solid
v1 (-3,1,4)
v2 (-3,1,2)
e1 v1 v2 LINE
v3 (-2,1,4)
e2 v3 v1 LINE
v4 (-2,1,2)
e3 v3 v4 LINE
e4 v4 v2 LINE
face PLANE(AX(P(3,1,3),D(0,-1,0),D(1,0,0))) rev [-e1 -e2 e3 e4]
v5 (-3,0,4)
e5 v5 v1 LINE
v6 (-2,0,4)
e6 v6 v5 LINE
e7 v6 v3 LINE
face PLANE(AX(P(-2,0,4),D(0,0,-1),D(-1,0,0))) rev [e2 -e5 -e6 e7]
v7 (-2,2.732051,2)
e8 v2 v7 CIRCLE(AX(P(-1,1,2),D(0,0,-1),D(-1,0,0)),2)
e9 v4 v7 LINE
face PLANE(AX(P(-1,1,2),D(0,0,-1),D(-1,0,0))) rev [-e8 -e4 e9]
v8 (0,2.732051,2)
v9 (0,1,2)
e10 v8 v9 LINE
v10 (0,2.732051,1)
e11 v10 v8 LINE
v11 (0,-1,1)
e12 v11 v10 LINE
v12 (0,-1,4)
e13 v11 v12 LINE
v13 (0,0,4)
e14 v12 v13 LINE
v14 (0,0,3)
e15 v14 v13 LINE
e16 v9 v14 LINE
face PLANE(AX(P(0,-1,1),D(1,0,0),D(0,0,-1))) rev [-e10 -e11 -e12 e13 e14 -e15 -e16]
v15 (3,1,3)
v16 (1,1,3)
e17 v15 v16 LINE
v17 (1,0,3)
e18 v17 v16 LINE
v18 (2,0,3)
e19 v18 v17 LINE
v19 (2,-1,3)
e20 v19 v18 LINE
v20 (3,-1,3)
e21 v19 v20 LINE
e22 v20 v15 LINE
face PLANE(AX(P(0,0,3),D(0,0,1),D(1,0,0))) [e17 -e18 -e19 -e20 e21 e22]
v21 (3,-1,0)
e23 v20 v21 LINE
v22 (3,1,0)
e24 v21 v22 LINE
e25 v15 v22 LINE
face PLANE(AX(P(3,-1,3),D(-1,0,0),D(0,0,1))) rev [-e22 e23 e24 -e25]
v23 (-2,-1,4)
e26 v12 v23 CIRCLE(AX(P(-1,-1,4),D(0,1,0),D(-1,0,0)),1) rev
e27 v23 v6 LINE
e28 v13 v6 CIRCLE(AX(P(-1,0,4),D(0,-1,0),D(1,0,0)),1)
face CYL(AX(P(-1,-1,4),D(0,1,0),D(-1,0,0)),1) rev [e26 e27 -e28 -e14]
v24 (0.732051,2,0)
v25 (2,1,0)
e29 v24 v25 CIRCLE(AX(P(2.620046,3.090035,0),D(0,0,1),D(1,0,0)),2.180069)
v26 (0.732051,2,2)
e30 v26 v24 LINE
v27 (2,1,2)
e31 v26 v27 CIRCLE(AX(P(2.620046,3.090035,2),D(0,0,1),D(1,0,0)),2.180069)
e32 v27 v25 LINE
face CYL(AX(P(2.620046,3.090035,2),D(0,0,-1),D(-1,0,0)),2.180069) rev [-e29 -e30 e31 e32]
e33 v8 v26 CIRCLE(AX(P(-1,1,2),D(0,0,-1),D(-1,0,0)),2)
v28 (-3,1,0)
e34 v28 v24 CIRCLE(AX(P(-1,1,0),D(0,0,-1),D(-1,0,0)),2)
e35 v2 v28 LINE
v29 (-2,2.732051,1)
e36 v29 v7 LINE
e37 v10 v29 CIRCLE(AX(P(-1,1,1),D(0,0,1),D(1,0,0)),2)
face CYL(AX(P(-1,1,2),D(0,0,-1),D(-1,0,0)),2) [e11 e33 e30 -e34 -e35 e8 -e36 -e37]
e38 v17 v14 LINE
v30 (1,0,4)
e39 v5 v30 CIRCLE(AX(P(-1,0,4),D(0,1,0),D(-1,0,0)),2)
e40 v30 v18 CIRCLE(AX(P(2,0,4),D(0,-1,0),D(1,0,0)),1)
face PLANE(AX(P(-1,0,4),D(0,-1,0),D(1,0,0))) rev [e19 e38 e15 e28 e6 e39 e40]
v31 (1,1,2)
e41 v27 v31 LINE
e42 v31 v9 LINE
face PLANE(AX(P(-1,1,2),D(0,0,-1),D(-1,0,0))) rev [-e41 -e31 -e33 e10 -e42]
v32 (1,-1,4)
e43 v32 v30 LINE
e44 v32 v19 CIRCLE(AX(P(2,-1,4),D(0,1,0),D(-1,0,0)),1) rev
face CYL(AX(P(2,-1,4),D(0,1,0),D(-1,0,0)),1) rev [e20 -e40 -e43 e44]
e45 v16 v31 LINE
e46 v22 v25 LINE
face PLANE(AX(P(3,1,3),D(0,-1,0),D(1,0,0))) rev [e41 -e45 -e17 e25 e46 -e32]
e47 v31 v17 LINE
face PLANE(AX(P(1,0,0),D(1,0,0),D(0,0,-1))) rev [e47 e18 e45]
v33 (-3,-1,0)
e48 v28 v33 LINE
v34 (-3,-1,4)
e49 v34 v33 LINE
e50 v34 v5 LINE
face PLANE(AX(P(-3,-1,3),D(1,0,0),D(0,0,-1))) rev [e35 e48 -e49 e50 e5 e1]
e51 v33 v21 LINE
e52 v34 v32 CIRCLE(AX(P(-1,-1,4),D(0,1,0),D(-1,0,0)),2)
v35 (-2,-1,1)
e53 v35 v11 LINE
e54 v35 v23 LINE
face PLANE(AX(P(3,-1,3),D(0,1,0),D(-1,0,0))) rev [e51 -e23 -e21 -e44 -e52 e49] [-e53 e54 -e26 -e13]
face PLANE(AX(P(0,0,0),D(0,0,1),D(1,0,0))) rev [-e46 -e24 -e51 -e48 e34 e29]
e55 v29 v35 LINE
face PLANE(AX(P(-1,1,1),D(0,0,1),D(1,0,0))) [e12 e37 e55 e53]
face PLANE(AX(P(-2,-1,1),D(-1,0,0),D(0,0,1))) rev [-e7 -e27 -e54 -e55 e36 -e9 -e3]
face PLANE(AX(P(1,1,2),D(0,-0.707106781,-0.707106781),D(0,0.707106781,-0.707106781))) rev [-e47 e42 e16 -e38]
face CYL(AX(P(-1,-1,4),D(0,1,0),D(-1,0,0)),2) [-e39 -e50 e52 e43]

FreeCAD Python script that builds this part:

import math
import FreeCAD as App
import Part
import Sketcher
Q = App.Units.Quantity


def add_polygon(sketch, points):
    """Adds a closed chain of lines whose ends are joined by coincident constraints."""
    first, n = sketch.GeometryCount, len(points)
    for a, b in zip(points, points[1:] + points[:1]):
        sketch.addGeometry(Part.LineSegment(App.Vector(*a, 0), App.Vector(*b, 0)), False)
    for i in range(n):
        sketch.addConstraint(Sketcher.Constraint("Coincident", first + i, 2, first + (i + 1) % n, 1))

doc = App.newDocument("Part")
params = doc.addObject("Spreadsheet::Sheet", "Params")
for row, (alias, value) in enumerate([
    ("sketch1_width", "6 mm"),
    ("sketch1_height", "2 mm"),
    ("pad1_length", "3 mm"),
    ("sketch2_radius", "2 mm"),
    ("sketch2_width", "5 mm"),
    ("pad2_length", "2 mm"),
    ("sketch3_radius", "2 mm"),
    ("sketch3_width", "2 mm"),
    ("pocket1_length", "2 mm"),
    ("sketch4_width", "1 mm"),
    ("pocket2_length", "1 mm"),
    ("sketch5_radius", "2 mm"),
    ("pad3_length", "2 mm"),
    ("sketch6_radius", "2 mm"),
    ("pocket3_length", "1 mm"),
], start=1):
    params.set(f"A{row}", alias)
    params.set(f"B{row}", "=" + value)
    params.setAlias(f"B{row}", alias)

body = doc.addObject("PartDesign::Body", "Body")

# Sketch on XY plane
sketch1 = doc.addObject("Sketcher::SketchObject", "Sketch")
body.addObject(sketch1)
sketch1.AttachmentSupport = (doc.XY_Plane, [""])
sketch1.MapMode = "FlatFace"
add_polygon(sketch1, [(-3, 1), (-3, -1), (3, -1), (3, 1)])  # lines 0-3
sketch1.addConstraint([
    Sketcher.Constraint("Vertical", 0),
    Sketcher.Constraint("Horizontal", 1),
    Sketcher.Constraint("Vertical", 2),
    Sketcher.Constraint("Horizontal", 3),
    Sketcher.Constraint("Symmetric", 0, 2, 2, 2, -1, 1),
    Sketcher.Constraint("DistanceX", 1, 1, 1, 2, Q("6 mm")),
    Sketcher.Constraint("DistanceY", 0, 2, 0, 1, Q("2 mm")),
])
sketch1.setExpression("Constraints[9]", "Params.sketch1_width")
sketch1.setExpression("Constraints[10]", "Params.sketch1_height")
pad1 = doc.addObject("PartDesign::Pad", "Pad")
body.addObject(pad1)
pad1.Profile = sketch1
pad1.setExpression("Length", "Params.pad1_length")

# Sketch on XY plane
sketch2 = doc.addObject("Sketcher::SketchObject", "Sketch001")
body.addObject(sketch2)
sketch2.AttachmentSupport = (doc.XY_Plane, [""])
sketch2.MapMode = "FlatFace"
sketch2.addGeometry([
    Part.LineSegment(App.Vector(2, 1, 0), App.Vector(-3, 1, 0)),
    Part.ArcOfCircle(Part.Circle(App.Vector(-1, 1, 0), App.Vector(0, 0, 1), 2), math.radians(30), math.radians(180)),
    Part.ArcOfCircle(Part.Circle(App.Vector(2.620046, 3.090035, 0), App.Vector(0, 0, 1), 2.180069), math.radians(-150), math.radians(-106.523932)),
], False)
sketch2.addConstraint([
    Sketcher.Constraint("Coincident", 0, 2, 1, 2),
    Sketcher.Constraint("Tangent", 1, 1, 2, 1),
    Sketcher.Constraint("Coincident", 2, 2, 0, 1),
    Sketcher.Constraint("Horizontal", 0),
    Sketcher.Constraint("Horizontal", 1, 3, 0, 2),
    Sketcher.Constraint("Radius", 1, Q("2 mm")),
    Sketcher.Constraint("DistanceX", 0, 2, 0, 1, Q("5 mm")),
    Sketcher.Constraint("DistanceX", 1, 3, -1, 1, Q("1 mm")),
    Sketcher.Constraint("DistanceY", -1, 1, 1, 3, Q("1 mm")),
    Sketcher.Constraint("DistanceY", -1, 1, 1, 1, Q("2 mm")),
])
sketch2.setExpression("Constraints[5]", "Params.sketch2_radius")
sketch2.setExpression("Constraints[6]", "Params.sketch2_width")
pad2 = doc.addObject("PartDesign::Pad", "Pad001")
body.addObject(pad2)
pad2.Profile = sketch2
pad2.setExpression("Length", "Params.pad2_length")

# Sketch on XY plane
sketch3 = doc.addObject("Sketcher::SketchObject", "Sketch002")
body.addObject(sketch3)
sketch3.AttachmentSupport = (doc.XY_Plane, [""])
sketch3.MapMode = "FlatFace"
sketch3.AttachmentOffset = App.Placement(App.Vector(0, 0, 3), App.Rotation())
sketch3.addGeometry([
    Part.LineSegment(App.Vector(0, -1, 0), App.Vector(0, 2.732051, 0)),
    Part.ArcOfCircle(Part.Circle(App.Vector(-1, 1, 0), App.Vector(0, 0, 1), 2), math.radians(60), math.radians(120)),
    Part.LineSegment(App.Vector(-2, 2.732051, 0), App.Vector(-2, -1, 0)),
    Part.LineSegment(App.Vector(-2, -1, 0), App.Vector(0, -1, 0)),
], False)
sketch3.addConstraint([
    Sketcher.Constraint("Coincident", 0, 2, 1, 1),
    Sketcher.Constraint("Coincident", 1, 2, 2, 1),
    Sketcher.Constraint("Coincident", 2, 2, 3, 1),
    Sketcher.Constraint("Coincident", 3, 2, 0, 1),
    Sketcher.Constraint("Vertical", 0),
    Sketcher.Constraint("Vertical", 2),
    Sketcher.Constraint("Horizontal", 3),
    Sketcher.Constraint("PointOnObject", 0, 2, -2),
    Sketcher.Constraint("Horizontal", 0, 2, 1, 2),
    Sketcher.Constraint("Radius", 1, Q("2 mm")),
    Sketcher.Constraint("DistanceX", 3, 1, 3, 2, Q("2 mm")),
    Sketcher.Constraint("DistanceY", -1, 1, 1, 3, Q("1 mm")),
    Sketcher.Constraint("DistanceY", 2, 2, -1, 1, Q("1 mm")),
])
sketch3.setExpression("Constraints[9]", "Params.sketch3_radius")
sketch3.setExpression("Constraints[10]", "Params.sketch3_width")
pocket1 = doc.addObject("PartDesign::Pocket", "Pocket")
body.addObject(pocket1)
pocket1.Profile = sketch3
pocket1.setExpression("Length", "Params.pocket1_length")

# Sketch on YZ plane
sketch4 = doc.addObject("Sketcher::SketchObject", "Sketch003")
body.addObject(sketch4)
sketch4.AttachmentSupport = (doc.YZ_Plane, [""])
sketch4.MapMode = "FlatFace"
add_polygon(sketch4, [(1, 2), (0, 3), (1, 3)])  # lines 0-2
sketch4.addConstraint([
    Sketcher.Constraint("Horizontal", 1),
    Sketcher.Constraint("Vertical", 2),
    Sketcher.Constraint("PointOnObject", 0, 2, -2),
    Sketcher.Constraint("Equal", 1, 2),
    Sketcher.Constraint("DistanceX", 1, 1, 1, 2, Q("1 mm")),
    Sketcher.Constraint("DistanceY", -1, 1, 0, 2, Q("3 mm")),
])
sketch4.setExpression("Constraints[7]", "Params.sketch4_width")
pocket2 = doc.addObject("PartDesign::Pocket", "Pocket001")
body.addObject(pocket2)
pocket2.Profile = sketch4
pocket2.setExpression("Length", "Params.pocket2_length")
pocket2.Reversed = True

# Sketch on XZ plane
sketch5 = doc.addObject("Sketcher::SketchObject", "Sketch004")
body.addObject(sketch5)
sketch5.AttachmentSupport = (doc.XZ_Plane, [""])
sketch5.MapMode = "FlatFace"
sketch5.AttachmentOffset = App.Placement(App.Vector(0, 0, -1), App.Rotation())
sketch5.addGeometry([
    Part.ArcOfCircle(Part.Circle(App.Vector(-1, 4, 0), App.Vector(0, 0, 1), 2), math.radians(0), math.radians(180)),  # 0
    Part.ArcOfCircle(Part.Circle(App.Vector(2, 4, 0), App.Vector(0, 0, 1), 1), math.radians(-180), math.radians(-90)),  # 1
    Part.LineSegment(App.Vector(2, 3, 0), App.Vector(0, 3, 0)),  # 2
    Part.LineSegment(App.Vector(0, 3, 0), App.Vector(0, 4, 0)),  # 3
    Part.ArcOfCircle(Part.Circle(App.Vector(-1, 4, 0), App.Vector(0, 0, 1), 1), math.radians(0), math.radians(180)),  # 4
    Part.LineSegment(App.Vector(-2, 4, 0), App.Vector(-2, 3, 0)),  # 5
    Part.LineSegment(App.Vector(-2, 3, 0), App.Vector(-3, 3, 0)),  # 6
    Part.LineSegment(App.Vector(-3, 3, 0), App.Vector(-3, 4, 0)),  # 7
], False)
sketch5.addConstraint([
    Sketcher.Constraint("Tangent", 0, 1, 1, 1),
    Sketcher.Constraint("Tangent", 1, 2, 2, 1),
    Sketcher.Constraint("Coincident", 2, 2, 3, 1),
    Sketcher.Constraint("Tangent", 3, 2, 4, 1),
    Sketcher.Constraint("Tangent", 4, 2, 5, 1),
    Sketcher.Constraint("Coincident", 5, 2, 6, 1),
    Sketcher.Constraint("Coincident", 6, 2, 7, 1),
    Sketcher.Constraint("Tangent", 7, 2, 0, 2),
    Sketcher.Constraint("Horizontal", 2),
    Sketcher.Constraint("Vertical", 3),
    Sketcher.Constraint("Vertical", 5),
    Sketcher.Constraint("Horizontal", 6),
    Sketcher.Constraint("Vertical", 7),
    Sketcher.Constraint("Coincident", 4, 3, 0, 3),
    Sketcher.Constraint("Equal", 1, 4),
    Sketcher.Constraint("Symmetric", 1, 2, 5, 2, -2),
    Sketcher.Constraint("PointOnObject", 2, 2, -2),
    Sketcher.Constraint("Horizontal", 0, 3, 1, 3),
    Sketcher.Constraint("Radius", 0, Q("2 mm")),
    Sketcher.Constraint("DistanceY", -1, 1, 0, 3, Q("4 mm")),
])
sketch5.setExpression("Constraints[18]", "Params.sketch5_radius")
pad3 = doc.addObject("PartDesign::Pad", "Pad002")
body.addObject(pad3)
pad3.Profile = sketch5
pad3.setExpression("Length", "Params.pad3_length")

# Sketch on XZ plane
sketch6 = doc.addObject("Sketcher::SketchObject", "Sketch005")
body.addObject(sketch6)
sketch6.AttachmentSupport = (doc.XZ_Plane, [""])
sketch6.MapMode = "FlatFace"
sketch6.AttachmentOffset = App.Placement(App.Vector(0, 0, -1), App.Rotation())
sketch6.addGeometry([
    Part.LineSegment(App.Vector(-2, 4, 0), App.Vector(-3, 4, 0)),  # 0
    Part.ArcOfCircle(Part.Circle(App.Vector(-1, 4, 0), App.Vector(0, 0, 1), 2), math.radians(0), math.radians(180)),  # 1
    Part.ArcOfCircle(Part.Circle(App.Vector(2, 4, 0), App.Vector(0, 0, 1), 1), math.radians(-180), math.radians(-90)),  # 2
    Part.LineSegment(App.Vector(2, 3, 0), App.Vector(0, 3, 0)),  # 3
    Part.LineSegment(App.Vector(0, 3, 0), App.Vector(0, 4, 0)),  # 4
    Part.ArcOfCircle(Part.Circle(App.Vector(-1, 4, 0), App.Vector(0, 0, 1), 1), math.radians(0), math.radians(180)),  # 5
], False)
sketch6.addConstraint([
    Sketcher.Constraint("Coincident", 0, 2, 1, 2),
    Sketcher.Constraint("Tangent", 1, 1, 2, 1),
    Sketcher.Constraint("Tangent", 2, 2, 3, 1),
    Sketcher.Constraint("Coincident", 3, 2, 4, 1),
    Sketcher.Constraint("Tangent", 4, 2, 5, 1),
    Sketcher.Constraint("Coincident", 5, 2, 0, 1),
    Sketcher.Constraint("Horizontal", 0),
    Sketcher.Constraint("Horizontal", 3),
    Sketcher.Constraint("Vertical", 4),
    Sketcher.Constraint("Coincident", 5, 3, 1, 3),
    Sketcher.Constraint("Equal", 2, 5),
    Sketcher.Constraint("PointOnObject", 3, 2, -2),
    Sketcher.Constraint("Horizontal", 1, 3, 2, 3),
    Sketcher.Constraint("Horizontal", 5, 3, 0, 2),
    Sketcher.Constraint("Equal", 0, 4),
    Sketcher.Constraint("Radius", 1, Q("2 mm")),
    Sketcher.Constraint("DistanceY", -1, 1, 1, 3, Q("4 mm")),
])
sketch6.setExpression("Constraints[15]", "Params.sketch6_radius")
pocket3 = doc.addObject("PartDesign::Pocket", "Pocket002")
body.addObject(pocket3)
pocket3.Profile = sketch6
pocket3.setExpression("Length", "Params.pocket3_length")
pocket3.Reversed = True

doc.recompute()
